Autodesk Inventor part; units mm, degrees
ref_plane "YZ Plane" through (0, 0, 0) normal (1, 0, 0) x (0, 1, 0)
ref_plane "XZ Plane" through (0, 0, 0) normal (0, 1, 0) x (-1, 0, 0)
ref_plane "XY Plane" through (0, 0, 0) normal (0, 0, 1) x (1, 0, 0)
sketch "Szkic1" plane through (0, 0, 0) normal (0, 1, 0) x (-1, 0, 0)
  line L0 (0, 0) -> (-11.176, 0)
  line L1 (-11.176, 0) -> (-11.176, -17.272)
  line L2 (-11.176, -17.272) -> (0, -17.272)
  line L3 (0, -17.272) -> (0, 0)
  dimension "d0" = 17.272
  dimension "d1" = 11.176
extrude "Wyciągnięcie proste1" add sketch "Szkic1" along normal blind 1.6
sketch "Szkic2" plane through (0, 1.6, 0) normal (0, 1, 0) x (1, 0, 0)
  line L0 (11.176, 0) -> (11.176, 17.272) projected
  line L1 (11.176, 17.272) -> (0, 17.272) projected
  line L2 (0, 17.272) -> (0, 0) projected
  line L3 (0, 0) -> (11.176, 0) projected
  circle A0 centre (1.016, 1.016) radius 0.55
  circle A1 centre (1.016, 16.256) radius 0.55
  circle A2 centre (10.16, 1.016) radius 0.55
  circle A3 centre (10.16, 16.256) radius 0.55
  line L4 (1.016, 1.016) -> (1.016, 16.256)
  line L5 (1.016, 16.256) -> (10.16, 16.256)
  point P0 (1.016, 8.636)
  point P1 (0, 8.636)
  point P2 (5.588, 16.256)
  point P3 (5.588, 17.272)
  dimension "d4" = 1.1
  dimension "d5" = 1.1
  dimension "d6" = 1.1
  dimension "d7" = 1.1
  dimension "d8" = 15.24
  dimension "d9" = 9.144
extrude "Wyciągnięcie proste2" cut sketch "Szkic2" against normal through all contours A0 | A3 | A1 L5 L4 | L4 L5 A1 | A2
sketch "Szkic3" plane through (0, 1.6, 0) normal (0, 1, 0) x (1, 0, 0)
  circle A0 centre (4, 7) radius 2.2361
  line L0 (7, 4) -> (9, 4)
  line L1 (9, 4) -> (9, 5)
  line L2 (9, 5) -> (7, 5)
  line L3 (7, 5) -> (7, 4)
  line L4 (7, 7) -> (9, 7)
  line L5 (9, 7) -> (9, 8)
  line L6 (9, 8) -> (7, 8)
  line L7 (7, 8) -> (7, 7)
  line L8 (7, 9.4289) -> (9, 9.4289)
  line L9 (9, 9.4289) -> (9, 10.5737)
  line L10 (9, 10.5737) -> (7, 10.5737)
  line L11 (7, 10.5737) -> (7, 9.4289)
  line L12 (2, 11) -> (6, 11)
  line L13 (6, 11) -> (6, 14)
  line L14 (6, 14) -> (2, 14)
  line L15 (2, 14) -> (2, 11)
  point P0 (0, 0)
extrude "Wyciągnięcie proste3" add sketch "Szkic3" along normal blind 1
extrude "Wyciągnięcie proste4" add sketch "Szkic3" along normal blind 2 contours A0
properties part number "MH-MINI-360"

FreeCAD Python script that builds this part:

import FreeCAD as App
import Part
import Sketcher
from FreeCAD import Vector

doc = App.newDocument("Part")
body = doc.addObject("PartDesign::Body", "Body")

# Sketch on XZ plane
sketch1 = body.newObject("Sketcher::SketchObject", "Sketch")
sketch1.AttachmentSupport = (doc.getObject("XZ_Plane"), [""])
sketch1.MapMode = "FlatFace"
sketch1.addGeometry(Part.LineSegment(Vector(0, -17, 0), Vector(0, 0, 0)), False)
sketch1.addGeometry(Part.LineSegment(Vector(0, 0, 0), Vector(11, 0, 0)), False)
sketch1.addGeometry(Part.LineSegment(Vector(11, 0, 0), Vector(11, -17, 0)), False)
sketch1.addGeometry(Part.LineSegment(Vector(11, -17, 0), Vector(0, -17, 0)), False)
sketch1.addConstraint(Sketcher.Constraint("Coincident", 0, 2, 1, 1))
sketch1.addConstraint(Sketcher.Constraint("Coincident", 1, 2, 2, 1))
sketch1.addConstraint(Sketcher.Constraint("Coincident", 2, 2, 3, 1))
sketch1.addConstraint(Sketcher.Constraint("Coincident", 3, 2, 0, 1))
sketch1.addConstraint(Sketcher.Constraint("Vertical", 0))
sketch1.addConstraint(Sketcher.Constraint("Horizontal", 1))
sketch1.addConstraint(Sketcher.Constraint("Vertical", 2))
sketch1.addConstraint(Sketcher.Constraint("Horizontal", 3))
sketch1.addConstraint(Sketcher.Constraint("Coincident", 0, 2, -1, 1))
sketch1.addConstraint(Sketcher.Constraint("DistanceX", 1, 1, 1, 2, 11.176))
sketch1.addConstraint(Sketcher.Constraint("DistanceY", 0, 1, 0, 2, 17.272))
pad1 = body.newObject("PartDesign::Pad", "Pad")
pad1.Profile = sketch1
pad1.Length = 1.6
pad1.Reversed = True

# Sketch on XZ plane
sketch2 = body.newObject("Sketcher::SketchObject", "Sketch001")
sketch2.AttachmentSupport = (doc.getObject("XZ_Plane"), [""])
sketch2.MapMode = "FlatFace"
sketch2.AttachmentOffset = App.Placement(Vector(0, 0, -1.6), App.Rotation())
sketch2.addGeometry(Part.Circle(Vector(1, -1, 0), Vector(0, 0, 1), 0.6), False)
sketch2.addGeometry(Part.Circle(Vector(10.2, -16.3, 0), Vector(0, 0, 1), 0.6), False)
sketch2.addGeometry(Part.Circle(Vector(1, -16.3, 0), Vector(0, 0, 1), 0.6), False)
sketch2.addGeometry(Part.Circle(Vector(10.2, -1, 0), Vector(0, 0, 1), 0.6), False)
sketch2.addConstraint(Sketcher.Constraint("Equal", 0, 1))
sketch2.addConstraint(Sketcher.Constraint("Equal", 1, 2))
sketch2.addConstraint(Sketcher.Constraint("Equal", 2, 3))
sketch2.addConstraint(Sketcher.Constraint("Horizontal", 1, 3, 2, 3))
sketch2.addConstraint(Sketcher.Constraint("Horizontal", 0, 3, 3, 3))
sketch2.addConstraint(Sketcher.Constraint("Vertical", 0, 3, 2, 3))
sketch2.addConstraint(Sketcher.Constraint("Vertical", 1, 3, 3, 3))
sketch2.addConstraint(Sketcher.Constraint("Diameter", 0, 1.1))
sketch2.addConstraint(Sketcher.Constraint("DistanceY", 1, 3, 0, 3, 15.24))
sketch2.addConstraint(Sketcher.Constraint("DistanceX", 0, 3, 1, 3, 9.144))
sketch2.addConstraint(Sketcher.Constraint("DistanceX", -1, 1, 1, 3, 10.16))
sketch2.addConstraint(Sketcher.Constraint("DistanceY", 0, 3, -1, 1, 1.016))
pocket1 = body.newObject("PartDesign::Pocket", "Pocket")
pocket1.Profile = sketch2
pocket1.Type = "ThroughAll"
pocket1.Reversed = True

# Sketch on XZ plane
sketch3 = body.newObject("Sketcher::SketchObject", "Sketch002")
sketch3.AttachmentSupport = (doc.getObject("XZ_Plane"), [""])
sketch3.MapMode = "FlatFace"
sketch3.AttachmentOffset = App.Placement(Vector(0, 0, -1.6), App.Rotation())
sketch3.addGeometry(Part.Circle(Vector(4, -7, 0), Vector(0, 0, 1), 2.2), False)
sketch3.addGeometry(Part.LineSegment(Vector(7, -5, 0), Vector(7, -4, 0)), False)
sketch3.addGeometry(Part.LineSegment(Vector(7, -4, 0), Vector(9, -4, 0)), False)
sketch3.addGeometry(Part.LineSegment(Vector(9, -4, 0), Vector(9, -5, 0)), False)
sketch3.addGeometry(Part.LineSegment(Vector(9, -5, 0), Vector(7, -5, 0)), False)
sketch3.addGeometry(Part.LineSegment(Vector(7, -8, 0), Vector(7, -7, 0)), False)
sketch3.addGeometry(Part.LineSegment(Vector(7, -7, 0), Vector(9, -7, 0)), False)
sketch3.addGeometry(Part.LineSegment(Vector(9, -7, 0), Vector(9, -8, 0)), False)
sketch3.addGeometry(Part.LineSegment(Vector(9, -8, 0), Vector(7, -8, 0)), False)
sketch3.addGeometry(Part.LineSegment(Vector(7, -10.6, 0), Vector(7, -9.4, 0)), False)
sketch3.addGeometry(Part.LineSegment(Vector(7, -9.4, 0), Vector(9, -9.4, 0)), False)
sketch3.addGeometry(Part.LineSegment(Vector(9, -9.4, 0), Vector(9, -10.6, 0)), False)
sketch3.addGeometry(Part.LineSegment(Vector(9, -10.6, 0), Vector(7, -10.6, 0)), False)
sketch3.addGeometry(Part.LineSegment(Vector(2, -14, 0), Vector(2, -11, 0)), False)
sketch3.addGeometry(Part.LineSegment(Vector(2, -11, 0), Vector(6, -11, 0)), False)
sketch3.addGeometry(Part.LineSegment(Vector(6, -11, 0), Vector(6, -14, 0)), False)
sketch3.addGeometry(Part.LineSegment(Vector(6, -14, 0), Vector(2, -14, 0)), False)
sketch3.addConstraint(Sketcher.Constraint("Coincident", 1, 2, 2, 1))
sketch3.addConstraint(Sketcher.Constraint("Coincident", 2, 2, 3, 1))
sketch3.addConstraint(Sketcher.Constraint("Coincident", 3, 2, 4, 1))
sketch3.addConstraint(Sketcher.Constraint("Coincident", 4, 2, 1, 1))
sketch3.addConstraint(Sketcher.Constraint("Coincident", 5, 2, 6, 1))
sketch3.addConstraint(Sketcher.Constraint("Coincident", 6, 2, 7, 1))
sketch3.addConstraint(Sketcher.Constraint("Coincident", 7, 2, 8, 1))
sketch3.addConstraint(Sketcher.Constraint("Coincident", 8, 2, 5, 1))
sketch3.addConstraint(Sketcher.Constraint("Coincident", 9, 2, 10, 1))
sketch3.addConstraint(Sketcher.Constraint("Coincident", 10, 2, 11, 1))
sketch3.addConstraint(Sketcher.Constraint("Coincident", 11, 2, 12, 1))
sketch3.addConstraint(Sketcher.Constraint("Coincident", 12, 2, 9, 1))
sketch3.addConstraint(Sketcher.Constraint("Coincident", 13, 2, 14, 1))
sketch3.addConstraint(Sketcher.Constraint("Coincident", 14, 2, 15, 1))
sketch3.addConstraint(Sketcher.Constraint("Coincident", 15, 2, 16, 1))
sketch3.addConstraint(Sketcher.Constraint("Coincident", 16, 2, 13, 1))
sketch3.addConstraint(Sketcher.Constraint("Vertical", 1))
sketch3.addConstraint(Sketcher.Constraint("Horizontal", 2))
sketch3.addConstraint(Sketcher.Constraint("Vertical", 3))
sketch3.addConstraint(Sketcher.Constraint("Horizontal", 4))
sketch3.addConstraint(Sketcher.Constraint("Vertical", 5))
sketch3.addConstraint(Sketcher.Constraint("Horizontal", 6))
sketch3.addConstraint(Sketcher.Constraint("Vertical", 7))
sketch3.addConstraint(Sketcher.Constraint("Horizontal", 8))
sketch3.addConstraint(Sketcher.Constraint("Vertical", 9))
sketch3.addConstraint(Sketcher.Constraint("Horizontal", 10))
sketch3.addConstraint(Sketcher.Constraint("Vertical", 11))
sketch3.addConstraint(Sketcher.Constraint("Horizontal", 12))
sketch3.addConstraint(Sketcher.Constraint("Vertical", 13))
sketch3.addConstraint(Sketcher.Constraint("Horizontal", 14))
sketch3.addConstraint(Sketcher.Constraint("Vertical", 15))
sketch3.addConstraint(Sketcher.Constraint("Horizontal", 16))
sketch3.addConstraint(Sketcher.Constraint("Horizontal", 0, 3, 5, 2))
sketch3.addConstraint(Sketcher.Constraint("Vertical", 4, 2, 5, 2))
sketch3.addConstraint(Sketcher.Constraint("Vertical", 3, 2, 6, 2))
sketch3.addConstraint(Sketcher.Constraint("Vertical", 8, 2, 9, 2))
sketch3.addConstraint(Sketcher.Constraint("Vertical", 7, 2, 10, 2))
sketch3.addConstraint(Sketcher.Constraint("Equal", 3, 5))
sketch3.addConstraint(Sketcher.Constraint("DistanceX", 2, 1, 2, 2, 2.0))
sketch3.addConstraint(Sketcher.Constraint("DistanceX", 14, 1, 14, 2, 4.0))
sketch3.addConstraint(Sketcher.Constraint("DistanceY", 1, 1, 1, 2, 1.0))
sketch3.addConstraint(Sketcher.Constraint("DistanceY", 13, 1, 13, 2, 3.0))
sketch3.addConstraint(Sketcher.Constraint("DistanceX", -1, 1, 0, 3, 4.0))
sketch3.addConstraint(Sketcher.Constraint("DistanceY", 0, 3, -1, 1, 7.0))
sketch3.addConstraint(Sketcher.Constraint("DistanceX", -1, 1, 1, 2, 7.0))
sketch3.addConstraint(Sketcher.Constraint("DistanceY", 1, 2, -1, 1, 4.0))
sketch3.addConstraint(Sketcher.Constraint("DistanceX", -1, 1, 13, 2, 2.0))
sketch3.addConstraint(Sketcher.Constraint("DistanceY", 13, 2, -1, 1, 11.0))
sketch3.addConstraint(Sketcher.Constraint("Diameter", 0, 4.4722))
sketch3.addConstraint(Sketcher.Constraint("DistanceY", 9, 1, 9, 2, 1.1448))
sketch3.addConstraint(Sketcher.Constraint("DistanceY", 9, 2, -1, 1, 9.429))
pad2 = body.newObject("PartDesign::Pad", "Pad001")
pad2.Profile = sketch3
pad2.Length = 1
pad2.Reversed = True

# Sketch on XZ plane
sketch4 = body.newObject("Sketcher::SketchObject", "Sketch003")
sketch4.AttachmentSupport = (doc.getObject("XZ_Plane"), [""])
sketch4.MapMode = "FlatFace"
sketch4.AttachmentOffset = App.Placement(Vector(0, 0, -1.6), App.Rotation())
sketch4.addGeometry(Part.Circle(Vector(4, -7, 0), Vector(0, 0, 1), 2.2), False)
sketch4.addConstraint(Sketcher.Constraint("DistanceX", -1, 1, 0, 3, 4.0))
sketch4.addConstraint(Sketcher.Constraint("DistanceY", 0, 3, -1, 1, 7.0))
sketch4.addConstraint(Sketcher.Constraint("Diameter", 0, 4.4722))
pad3 = body.newObject("PartDesign::Pad", "Pad002")
pad3.Profile = sketch4
pad3.Length = 2
pad3.Reversed = True

doc.recompute()
